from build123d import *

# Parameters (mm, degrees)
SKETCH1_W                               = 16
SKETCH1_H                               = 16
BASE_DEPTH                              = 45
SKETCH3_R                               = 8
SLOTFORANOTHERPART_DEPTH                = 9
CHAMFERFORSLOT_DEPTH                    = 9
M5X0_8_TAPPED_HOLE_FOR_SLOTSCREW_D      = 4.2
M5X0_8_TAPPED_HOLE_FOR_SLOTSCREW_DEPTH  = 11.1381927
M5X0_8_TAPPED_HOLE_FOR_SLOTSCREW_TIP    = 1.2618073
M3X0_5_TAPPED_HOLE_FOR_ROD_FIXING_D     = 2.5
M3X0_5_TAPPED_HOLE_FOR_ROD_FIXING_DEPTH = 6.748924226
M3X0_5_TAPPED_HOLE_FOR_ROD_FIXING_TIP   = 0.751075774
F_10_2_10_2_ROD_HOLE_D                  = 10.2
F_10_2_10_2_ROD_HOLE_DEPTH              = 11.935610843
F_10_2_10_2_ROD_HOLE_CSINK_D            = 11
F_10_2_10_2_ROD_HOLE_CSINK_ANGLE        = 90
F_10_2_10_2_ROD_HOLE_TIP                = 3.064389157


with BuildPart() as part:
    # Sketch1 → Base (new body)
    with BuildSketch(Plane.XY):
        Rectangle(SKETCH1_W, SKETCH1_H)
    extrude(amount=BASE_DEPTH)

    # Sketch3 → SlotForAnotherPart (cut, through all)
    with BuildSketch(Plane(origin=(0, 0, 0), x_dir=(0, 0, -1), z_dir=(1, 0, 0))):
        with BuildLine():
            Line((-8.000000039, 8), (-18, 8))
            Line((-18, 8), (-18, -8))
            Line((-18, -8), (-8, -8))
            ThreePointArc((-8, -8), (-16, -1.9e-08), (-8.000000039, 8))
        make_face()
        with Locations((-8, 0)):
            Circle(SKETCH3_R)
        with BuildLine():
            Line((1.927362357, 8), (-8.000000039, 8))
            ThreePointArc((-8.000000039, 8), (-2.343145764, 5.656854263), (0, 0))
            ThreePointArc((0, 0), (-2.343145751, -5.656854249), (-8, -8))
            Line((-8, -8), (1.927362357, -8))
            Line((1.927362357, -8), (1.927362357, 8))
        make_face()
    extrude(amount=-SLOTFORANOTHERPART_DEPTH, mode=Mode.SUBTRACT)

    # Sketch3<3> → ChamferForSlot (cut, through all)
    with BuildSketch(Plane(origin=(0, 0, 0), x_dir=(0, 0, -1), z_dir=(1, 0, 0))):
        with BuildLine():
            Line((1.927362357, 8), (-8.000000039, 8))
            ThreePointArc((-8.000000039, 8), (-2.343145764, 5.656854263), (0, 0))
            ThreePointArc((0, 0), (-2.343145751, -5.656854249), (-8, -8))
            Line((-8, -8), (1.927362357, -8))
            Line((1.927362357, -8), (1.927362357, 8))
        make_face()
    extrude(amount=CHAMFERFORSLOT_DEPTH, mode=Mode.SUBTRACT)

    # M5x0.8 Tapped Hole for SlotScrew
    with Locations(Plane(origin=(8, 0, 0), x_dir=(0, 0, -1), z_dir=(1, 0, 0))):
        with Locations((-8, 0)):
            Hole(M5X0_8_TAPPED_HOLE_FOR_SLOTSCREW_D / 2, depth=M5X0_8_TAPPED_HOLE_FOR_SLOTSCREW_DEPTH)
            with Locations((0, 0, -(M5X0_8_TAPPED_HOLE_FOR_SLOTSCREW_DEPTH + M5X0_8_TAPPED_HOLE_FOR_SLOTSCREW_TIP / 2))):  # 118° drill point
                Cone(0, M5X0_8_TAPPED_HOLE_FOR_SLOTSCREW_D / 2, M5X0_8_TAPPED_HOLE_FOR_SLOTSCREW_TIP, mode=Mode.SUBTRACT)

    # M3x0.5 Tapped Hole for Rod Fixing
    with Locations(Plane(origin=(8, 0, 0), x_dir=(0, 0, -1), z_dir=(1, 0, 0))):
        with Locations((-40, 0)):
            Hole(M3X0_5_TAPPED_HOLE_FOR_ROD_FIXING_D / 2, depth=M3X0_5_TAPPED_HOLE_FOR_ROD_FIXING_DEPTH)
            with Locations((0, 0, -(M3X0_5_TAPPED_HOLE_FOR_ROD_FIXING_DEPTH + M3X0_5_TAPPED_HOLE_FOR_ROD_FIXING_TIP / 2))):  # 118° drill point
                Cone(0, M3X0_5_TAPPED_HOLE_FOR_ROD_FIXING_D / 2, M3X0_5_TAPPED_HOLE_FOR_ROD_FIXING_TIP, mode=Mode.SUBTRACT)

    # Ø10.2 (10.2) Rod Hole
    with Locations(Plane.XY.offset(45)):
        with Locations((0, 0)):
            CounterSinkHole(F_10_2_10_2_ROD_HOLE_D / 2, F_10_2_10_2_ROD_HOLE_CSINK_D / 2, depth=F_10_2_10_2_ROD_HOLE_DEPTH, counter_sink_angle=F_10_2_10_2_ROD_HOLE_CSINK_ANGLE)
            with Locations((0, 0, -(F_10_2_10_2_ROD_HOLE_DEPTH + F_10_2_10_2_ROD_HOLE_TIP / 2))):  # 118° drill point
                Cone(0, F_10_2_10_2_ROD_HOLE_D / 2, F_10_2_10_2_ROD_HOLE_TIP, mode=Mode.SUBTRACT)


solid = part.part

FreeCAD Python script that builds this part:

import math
import FreeCAD as App
import Part
import Sketcher
from FreeCAD import Vector
Q = App.Units.Quantity

doc = App.newDocument("Part")
params = doc.addObject("Spreadsheet::Sheet", "Params")
for row, (alias, value) in enumerate([
    ("sketch1_width", "16 mm"),
    ("pad1_length", "45 mm"),
    ("sketch2_width", "16 mm"),
    ("sketch3_radius", "8 mm"),
    ("sketch4_diameter", "4.2 mm"),
    ("hole_diameter", "4.2 mm"),
    ("hole_depth", "11.138193 mm"),
    ("sketch5_diameter", "2.5 mm"),
    ("hole2_diameter", "2.5 mm"),
    ("hole2_depth", "6.748924 mm"),
    ("sketch6_diameter", "10.2 mm"),
    ("hole3_diameter", "10.2 mm"),
    ("hole3_depth", "11.935611 mm"),
    ("hole3_csink_diameter", "11 mm"),
], start=1):
    params.set(f"A{row}", alias)
    params.set(f"B{row}", "=" + value)
    params.setAlias(f"B{row}", alias)

body = doc.addObject("PartDesign::Body", "Body")

# Sketch on XY plane
sketch1 = body.newObject("Sketcher::SketchObject", "Sketch")
sketch1.AttachmentSupport = (doc.getObject("XY_Plane"), [""])
sketch1.MapMode = "FlatFace"
sketch1.addGeometry([
    Part.LineSegment(Vector(-8, 8, 0), Vector(-8, -8, 0)),
    Part.LineSegment(Vector(-8, -8, 0), Vector(8, -8, 0)),
    Part.LineSegment(Vector(8, -8, 0), Vector(8, 8, 0)),
    Part.LineSegment(Vector(8, 8, 0), Vector(-8, 8, 0)),
], False)
sketch1.addConstraint([
    Sketcher.Constraint("Coincident", 0, 2, 1, 1),
    Sketcher.Constraint("Coincident", 1, 2, 2, 1),
    Sketcher.Constraint("Coincident", 2, 2, 3, 1),
    Sketcher.Constraint("Coincident", 3, 2, 0, 1),
    Sketcher.Constraint("Vertical", 0),
    Sketcher.Constraint("Horizontal", 1),
    Sketcher.Constraint("Vertical", 2),
    Sketcher.Constraint("Horizontal", 3),
    Sketcher.Constraint("Symmetric", 0, 2, 2, 2, -1, 1),
    Sketcher.Constraint("Equal", 3, 0),
    Sketcher.Constraint("DistanceX", 1, 1, 1, 2, Q("16 mm")),
])
sketch1.setExpression("Constraints[10]", "Params.sketch1_width")
pad1 = body.newObject("PartDesign::Pad", "Pad")
pad1.Profile = sketch1
pad1.setExpression("Length", "Params.pad1_length")

# Sketch on YZ plane
sketch2 = body.newObject("Sketcher::SketchObject", "Sketch001")
sketch2.AttachmentSupport = (doc.getObject("YZ_Plane"), [""])
sketch2.MapMode = "FlatFace"
sketch2.addGeometry([
    Part.LineSegment(Vector(8, 18, 0), Vector(-8, 18, 0)),
    Part.LineSegment(Vector(-8, 18, 0), Vector(-8, -2, 0)),
    Part.LineSegment(Vector(-8, -2, 0), Vector(8, -2, 0)),
    Part.LineSegment(Vector(8, -2, 0), Vector(8, 18, 0)),
], False)
sketch2.addConstraint([
    Sketcher.Constraint("Coincident", 0, 2, 1, 1),
    Sketcher.Constraint("Coincident", 1, 2, 2, 1),
    Sketcher.Constraint("Coincident", 2, 2, 3, 1),
    Sketcher.Constraint("Coincident", 3, 2, 0, 1),
    Sketcher.Constraint("Horizontal", 0),
    Sketcher.Constraint("Vertical", 1),
    Sketcher.Constraint("Horizontal", 2),
    Sketcher.Constraint("Vertical", 3),
    Sketcher.Constraint("DistanceX", 0, 2, 0, 1, Q("16 mm")),
    Sketcher.Constraint("DistanceX", 0, 2, -1, 1, Q("8 mm")),
    Sketcher.Constraint("DistanceY", -1, 1, 0, 2, Q("18 mm")),
    Sketcher.Constraint("DistanceY", 1, 2, 1, 1, Q("19.927362 mm")),
])
sketch2.setExpression("Constraints[8]", "Params.sketch2_width")
pocket1 = body.newObject("PartDesign::Pocket", "Pocket")
pocket1.Profile = sketch2
pocket1.Type = "ThroughAll"

# Sketch on YZ plane
sketch3 = body.newObject("Sketcher::SketchObject", "Sketch002")
sketch3.AttachmentSupport = (doc.getObject("YZ_Plane"), [""])
sketch3.MapMode = "FlatFace"
sketch3.addGeometry([
    Part.LineSegment(Vector(8, -2, 0), Vector(8, 8, 0)),  # 0
    Part.ArcOfCircle(Part.Circle(Vector(0, 8, 0), Vector(0, 0, 1), 8), math.radians(-90), math.radians(0)),  # 1
    Part.ArcOfCircle(Part.Circle(Vector(0, 8, 0), Vector(0, 0, 1), 8), math.radians(-180), math.radians(-90)),  # 2
    Part.LineSegment(Vector(-8, 8, 0), Vector(-8, -2, 0)),  # 3
    Part.LineSegment(Vector(-8, -2, 0), Vector(8, -2, 0)),  # 4
], False)
sketch3.addConstraint([
    Sketcher.Constraint("Tangent", 0, 2, 1, 2),
    Sketcher.Constraint("Tangent", 1, 1, 2, 2),
    Sketcher.Constraint("Tangent", 2, 1, 3, 1),
    Sketcher.Constraint("Coincident", 3, 2, 4, 1),
    Sketcher.Constraint("Coincident", 4, 2, 0, 1),
    Sketcher.Constraint("Vertical", 0),
    Sketcher.Constraint("Vertical", 3),
    Sketcher.Constraint("Horizontal", 4),
    Sketcher.Constraint("Coincident", 1, 1, -1, 1),
    Sketcher.Constraint("Equal", 1, 2),
    Sketcher.Constraint("PointOnObject", 1, 3, -2),
    Sketcher.Constraint("Radius", 1, Q("8 mm")),
    Sketcher.Constraint("DistanceY", 0, 1, 0, 2, Q("9.927362 mm")),
])
sketch3.setExpression("Constraints[11]", "Params.sketch3_radius")
pocket2 = body.newObject("PartDesign::Pocket", "Pocket001")
pocket2.Profile = sketch3
pocket2.Type = "ThroughAll"
pocket2.Reversed = True

# Sketch on YZ plane
sketch4 = body.newObject("Sketcher::SketchObject", "Sketch003")
sketch4.AttachmentSupport = (doc.getObject("YZ_Plane"), [""])
sketch4.MapMode = "FlatFace"
sketch4.AttachmentOffset = App.Placement(Vector(0, 0, 8), App.Rotation())
sketch4.addGeometry(Part.Circle(Vector(0, 8, 0), Vector(0, 0, 1), 2.1), False)
sketch4.addConstraint([
    Sketcher.Constraint("PointOnObject", 0, 3, -2),
    Sketcher.Constraint("Diameter", 0, Q("4.2 mm")),
    Sketcher.Constraint("DistanceY", -1, 1, 0, 3, Q("8 mm")),
])
sketch4.setExpression("Constraints[1]", "Params.sketch4_diameter")
doc.recompute()
hole = body.newObject("PartDesign::Hole", "Hole")
hole.Profile = sketch4
hole.ThreadType = "None"
hole.setExpression("Diameter", "Params.hole_diameter")
hole.DepthType = "Dimension"
hole.setExpression("Depth", "Params.hole_depth")
hole.DrillPoint = "Angled"
hole.DrillPointAngle = 118

# Sketch on YZ plane
sketch5 = body.newObject("Sketcher::SketchObject", "Sketch004")
sketch5.AttachmentSupport = (doc.getObject("YZ_Plane"), [""])
sketch5.MapMode = "FlatFace"
sketch5.AttachmentOffset = App.Placement(Vector(0, 0, 8), App.Rotation())
sketch5.addGeometry(Part.Circle(Vector(0, 40, 0), Vector(0, 0, 1), 1.2), False)
sketch5.addConstraint([
    Sketcher.Constraint("PointOnObject", 0, 3, -2),
    Sketcher.Constraint("Diameter", 0, Q("2.5 mm")),
    Sketcher.Constraint("DistanceY", -1, 1, 0, 3, Q("40 mm")),
])
sketch5.setExpression("Constraints[1]", "Params.sketch5_diameter")
doc.recompute()
hole2 = body.newObject("PartDesign::Hole", "Hole001")
hole2.Profile = sketch5
hole2.ThreadType = "None"
hole2.setExpression("Diameter", "Params.hole2_diameter")
hole2.DepthType = "Dimension"
hole2.setExpression("Depth", "Params.hole2_depth")
hole2.DrillPoint = "Angled"
hole2.DrillPointAngle = 118

# Sketch on XY plane
sketch6 = body.newObject("Sketcher::SketchObject", "Sketch005")
sketch6.AttachmentSupport = (doc.getObject("XY_Plane"), [""])
sketch6.MapMode = "FlatFace"
sketch6.AttachmentOffset = App.Placement(Vector(0, 0, 45), App.Rotation())
sketch6.addGeometry(Part.Circle(Vector(0, 0, 0), Vector(0, 0, 1), 5), False)
sketch6.addConstraint([
    Sketcher.Constraint("Coincident", 0, 3, -1, 1),
    Sketcher.Constraint("Diameter", 0, Q("10.2 mm")),
])
sketch6.setExpression("Constraints[1]", "Params.sketch6_diameter")
doc.recompute()
hole3 = body.newObject("PartDesign::Hole", "Hole002")
hole3.Profile = sketch6
hole3.ThreadType = "None"
hole3.setExpression("Diameter", "Params.hole3_diameter")
hole3.DepthType = "Dimension"
hole3.setExpression("Depth", "Params.hole3_depth")
hole3.DrillPoint = "Angled"
hole3.DrillPointAngle = 118
hole3.HoleCutType = "Countersink"
hole3.setExpression("HoleCutDiameter", "Params.hole3_csink_diameter")
hole3.HoleCutCountersinkAngle = 90

doc.recompute()
